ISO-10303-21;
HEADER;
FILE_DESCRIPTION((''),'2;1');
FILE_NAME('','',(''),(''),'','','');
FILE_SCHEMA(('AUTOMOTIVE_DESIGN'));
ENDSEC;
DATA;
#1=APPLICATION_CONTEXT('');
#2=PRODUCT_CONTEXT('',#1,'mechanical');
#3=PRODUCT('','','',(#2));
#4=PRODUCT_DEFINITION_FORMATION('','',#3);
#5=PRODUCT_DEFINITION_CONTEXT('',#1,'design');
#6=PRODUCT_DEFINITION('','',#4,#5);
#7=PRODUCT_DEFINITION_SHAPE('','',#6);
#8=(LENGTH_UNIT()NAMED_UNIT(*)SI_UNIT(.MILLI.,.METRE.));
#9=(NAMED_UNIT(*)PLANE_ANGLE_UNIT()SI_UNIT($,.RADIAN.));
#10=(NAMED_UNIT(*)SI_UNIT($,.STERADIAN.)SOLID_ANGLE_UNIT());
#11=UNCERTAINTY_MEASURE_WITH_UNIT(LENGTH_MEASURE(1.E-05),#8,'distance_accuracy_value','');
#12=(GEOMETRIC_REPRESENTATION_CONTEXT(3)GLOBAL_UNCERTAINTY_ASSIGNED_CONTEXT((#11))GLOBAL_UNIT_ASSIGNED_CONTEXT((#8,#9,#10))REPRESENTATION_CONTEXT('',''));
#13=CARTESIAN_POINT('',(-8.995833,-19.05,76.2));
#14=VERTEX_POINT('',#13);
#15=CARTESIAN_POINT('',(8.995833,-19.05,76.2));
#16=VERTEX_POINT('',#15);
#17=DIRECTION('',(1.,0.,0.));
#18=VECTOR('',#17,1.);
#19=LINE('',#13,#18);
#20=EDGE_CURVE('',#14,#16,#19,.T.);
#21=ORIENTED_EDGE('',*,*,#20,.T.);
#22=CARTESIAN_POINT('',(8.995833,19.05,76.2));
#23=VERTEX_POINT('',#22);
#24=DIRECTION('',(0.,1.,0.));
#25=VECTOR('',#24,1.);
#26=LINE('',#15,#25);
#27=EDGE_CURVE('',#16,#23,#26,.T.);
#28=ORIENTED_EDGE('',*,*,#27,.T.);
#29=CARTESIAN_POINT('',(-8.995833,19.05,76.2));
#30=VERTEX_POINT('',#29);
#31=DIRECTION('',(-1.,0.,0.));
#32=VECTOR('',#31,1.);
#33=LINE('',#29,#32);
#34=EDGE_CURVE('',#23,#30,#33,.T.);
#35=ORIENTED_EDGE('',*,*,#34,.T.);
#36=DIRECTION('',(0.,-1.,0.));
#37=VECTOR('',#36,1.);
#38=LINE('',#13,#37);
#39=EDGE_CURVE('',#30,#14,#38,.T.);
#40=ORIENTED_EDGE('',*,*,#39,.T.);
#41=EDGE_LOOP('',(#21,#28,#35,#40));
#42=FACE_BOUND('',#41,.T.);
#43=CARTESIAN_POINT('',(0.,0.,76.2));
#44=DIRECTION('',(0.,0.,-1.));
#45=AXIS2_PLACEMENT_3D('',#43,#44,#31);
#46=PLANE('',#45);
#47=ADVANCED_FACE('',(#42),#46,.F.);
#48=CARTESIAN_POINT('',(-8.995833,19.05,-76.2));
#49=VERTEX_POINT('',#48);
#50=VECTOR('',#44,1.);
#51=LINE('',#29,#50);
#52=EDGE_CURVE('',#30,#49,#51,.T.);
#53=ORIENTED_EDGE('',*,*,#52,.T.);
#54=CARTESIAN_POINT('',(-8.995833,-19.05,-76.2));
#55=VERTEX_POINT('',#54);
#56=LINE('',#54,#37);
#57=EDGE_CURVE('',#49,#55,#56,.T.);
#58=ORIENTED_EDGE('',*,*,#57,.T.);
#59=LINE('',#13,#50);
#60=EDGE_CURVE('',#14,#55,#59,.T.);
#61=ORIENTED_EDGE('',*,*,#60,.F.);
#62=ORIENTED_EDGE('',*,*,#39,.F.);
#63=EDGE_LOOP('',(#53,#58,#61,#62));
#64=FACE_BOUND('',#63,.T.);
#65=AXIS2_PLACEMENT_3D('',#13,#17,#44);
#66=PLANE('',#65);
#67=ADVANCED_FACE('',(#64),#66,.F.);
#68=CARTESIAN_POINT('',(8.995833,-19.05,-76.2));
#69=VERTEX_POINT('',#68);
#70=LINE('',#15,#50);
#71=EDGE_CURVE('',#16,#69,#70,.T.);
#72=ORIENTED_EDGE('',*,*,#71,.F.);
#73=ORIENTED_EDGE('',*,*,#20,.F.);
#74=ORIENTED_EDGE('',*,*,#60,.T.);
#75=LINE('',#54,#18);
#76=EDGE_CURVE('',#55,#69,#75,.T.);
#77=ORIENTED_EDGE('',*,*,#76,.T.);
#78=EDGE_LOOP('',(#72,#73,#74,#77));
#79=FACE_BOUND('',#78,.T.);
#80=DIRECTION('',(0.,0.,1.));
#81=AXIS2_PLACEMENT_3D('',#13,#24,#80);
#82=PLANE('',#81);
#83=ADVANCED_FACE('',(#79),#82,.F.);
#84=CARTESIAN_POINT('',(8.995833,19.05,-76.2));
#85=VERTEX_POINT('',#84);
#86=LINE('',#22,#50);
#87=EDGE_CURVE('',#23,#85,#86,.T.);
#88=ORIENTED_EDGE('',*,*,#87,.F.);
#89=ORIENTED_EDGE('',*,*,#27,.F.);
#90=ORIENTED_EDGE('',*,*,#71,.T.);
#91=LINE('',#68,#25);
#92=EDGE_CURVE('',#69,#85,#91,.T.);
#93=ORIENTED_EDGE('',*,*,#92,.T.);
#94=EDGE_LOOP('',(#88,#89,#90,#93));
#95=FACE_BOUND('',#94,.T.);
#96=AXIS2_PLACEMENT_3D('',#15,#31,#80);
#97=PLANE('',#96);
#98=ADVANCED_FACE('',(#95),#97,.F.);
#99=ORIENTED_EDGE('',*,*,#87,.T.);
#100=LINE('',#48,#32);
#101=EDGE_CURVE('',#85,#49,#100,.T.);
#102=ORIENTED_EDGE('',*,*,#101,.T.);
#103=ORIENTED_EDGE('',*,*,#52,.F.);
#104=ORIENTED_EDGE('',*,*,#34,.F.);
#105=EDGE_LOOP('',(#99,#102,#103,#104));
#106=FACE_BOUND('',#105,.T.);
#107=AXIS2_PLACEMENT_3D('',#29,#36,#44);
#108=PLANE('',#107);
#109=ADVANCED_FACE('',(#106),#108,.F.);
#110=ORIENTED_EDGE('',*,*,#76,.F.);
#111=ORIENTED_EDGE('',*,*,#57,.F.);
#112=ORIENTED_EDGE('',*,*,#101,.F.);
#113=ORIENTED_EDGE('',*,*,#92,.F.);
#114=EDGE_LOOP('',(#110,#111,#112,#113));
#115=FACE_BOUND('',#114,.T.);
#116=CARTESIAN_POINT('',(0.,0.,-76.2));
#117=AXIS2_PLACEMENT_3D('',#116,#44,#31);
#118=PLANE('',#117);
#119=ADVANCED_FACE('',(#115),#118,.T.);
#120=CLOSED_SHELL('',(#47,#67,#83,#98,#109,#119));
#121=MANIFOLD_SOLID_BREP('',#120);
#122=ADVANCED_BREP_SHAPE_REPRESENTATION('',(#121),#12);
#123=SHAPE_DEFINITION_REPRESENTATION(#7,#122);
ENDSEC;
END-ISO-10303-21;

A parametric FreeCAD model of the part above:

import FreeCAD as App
import Part
import Sketcher
from FreeCAD import Vector
Q = App.Units.Quantity


def add_polygon(sketch, points):
    """Adds a closed chain of lines whose ends are joined by coincident constraints."""
    first, n = sketch.GeometryCount, len(points)
    for a, b in zip(points, points[1:] + points[:1]):
        sketch.addGeometry(Part.LineSegment(App.Vector(*a, 0), App.Vector(*b, 0)), False)
    for i in range(n):
        sketch.addConstraint(Sketcher.Constraint("Coincident", first + i, 2, first + (i + 1) % n, 1))

doc = App.newDocument("Part")
body = doc.addObject("PartDesign::Body", "Body")

# Sketch on XY plane
sketch1 = body.newObject("Sketcher::SketchObject", "Sketch")
sketch1.AttachmentSupport = (doc.getObject("XY_Plane"), [""])
sketch1.MapMode = "FlatFace"
add_polygon(sketch1, [(-8.995833, 19.05), (-8.995833, -19.05), (8.995833, -19.05), (8.995833, 19.05)])  # lines 0-3
sketch1.addConstraint([
    Sketcher.Constraint("Vertical", 0),
    Sketcher.Constraint("Horizontal", 1),
    Sketcher.Constraint("Vertical", 2),
    Sketcher.Constraint("Horizontal", 3),
    Sketcher.Constraint("Symmetric", 0, 2, 2, 2, -1, 1),
    Sketcher.Constraint("DistanceY", 0, 2, 0, 1, Q("1.5 in")),
    Sketcher.Constraint("DistanceX", 1, 1, 1, 2, Q("17.991667 mm")),
])
pad1 = body.newObject("PartDesign::Pad", "Pad")
pad1.Profile = sketch1
pad1.Length = Q("6 in")
pad1.Midplane = True

doc.recompute()
